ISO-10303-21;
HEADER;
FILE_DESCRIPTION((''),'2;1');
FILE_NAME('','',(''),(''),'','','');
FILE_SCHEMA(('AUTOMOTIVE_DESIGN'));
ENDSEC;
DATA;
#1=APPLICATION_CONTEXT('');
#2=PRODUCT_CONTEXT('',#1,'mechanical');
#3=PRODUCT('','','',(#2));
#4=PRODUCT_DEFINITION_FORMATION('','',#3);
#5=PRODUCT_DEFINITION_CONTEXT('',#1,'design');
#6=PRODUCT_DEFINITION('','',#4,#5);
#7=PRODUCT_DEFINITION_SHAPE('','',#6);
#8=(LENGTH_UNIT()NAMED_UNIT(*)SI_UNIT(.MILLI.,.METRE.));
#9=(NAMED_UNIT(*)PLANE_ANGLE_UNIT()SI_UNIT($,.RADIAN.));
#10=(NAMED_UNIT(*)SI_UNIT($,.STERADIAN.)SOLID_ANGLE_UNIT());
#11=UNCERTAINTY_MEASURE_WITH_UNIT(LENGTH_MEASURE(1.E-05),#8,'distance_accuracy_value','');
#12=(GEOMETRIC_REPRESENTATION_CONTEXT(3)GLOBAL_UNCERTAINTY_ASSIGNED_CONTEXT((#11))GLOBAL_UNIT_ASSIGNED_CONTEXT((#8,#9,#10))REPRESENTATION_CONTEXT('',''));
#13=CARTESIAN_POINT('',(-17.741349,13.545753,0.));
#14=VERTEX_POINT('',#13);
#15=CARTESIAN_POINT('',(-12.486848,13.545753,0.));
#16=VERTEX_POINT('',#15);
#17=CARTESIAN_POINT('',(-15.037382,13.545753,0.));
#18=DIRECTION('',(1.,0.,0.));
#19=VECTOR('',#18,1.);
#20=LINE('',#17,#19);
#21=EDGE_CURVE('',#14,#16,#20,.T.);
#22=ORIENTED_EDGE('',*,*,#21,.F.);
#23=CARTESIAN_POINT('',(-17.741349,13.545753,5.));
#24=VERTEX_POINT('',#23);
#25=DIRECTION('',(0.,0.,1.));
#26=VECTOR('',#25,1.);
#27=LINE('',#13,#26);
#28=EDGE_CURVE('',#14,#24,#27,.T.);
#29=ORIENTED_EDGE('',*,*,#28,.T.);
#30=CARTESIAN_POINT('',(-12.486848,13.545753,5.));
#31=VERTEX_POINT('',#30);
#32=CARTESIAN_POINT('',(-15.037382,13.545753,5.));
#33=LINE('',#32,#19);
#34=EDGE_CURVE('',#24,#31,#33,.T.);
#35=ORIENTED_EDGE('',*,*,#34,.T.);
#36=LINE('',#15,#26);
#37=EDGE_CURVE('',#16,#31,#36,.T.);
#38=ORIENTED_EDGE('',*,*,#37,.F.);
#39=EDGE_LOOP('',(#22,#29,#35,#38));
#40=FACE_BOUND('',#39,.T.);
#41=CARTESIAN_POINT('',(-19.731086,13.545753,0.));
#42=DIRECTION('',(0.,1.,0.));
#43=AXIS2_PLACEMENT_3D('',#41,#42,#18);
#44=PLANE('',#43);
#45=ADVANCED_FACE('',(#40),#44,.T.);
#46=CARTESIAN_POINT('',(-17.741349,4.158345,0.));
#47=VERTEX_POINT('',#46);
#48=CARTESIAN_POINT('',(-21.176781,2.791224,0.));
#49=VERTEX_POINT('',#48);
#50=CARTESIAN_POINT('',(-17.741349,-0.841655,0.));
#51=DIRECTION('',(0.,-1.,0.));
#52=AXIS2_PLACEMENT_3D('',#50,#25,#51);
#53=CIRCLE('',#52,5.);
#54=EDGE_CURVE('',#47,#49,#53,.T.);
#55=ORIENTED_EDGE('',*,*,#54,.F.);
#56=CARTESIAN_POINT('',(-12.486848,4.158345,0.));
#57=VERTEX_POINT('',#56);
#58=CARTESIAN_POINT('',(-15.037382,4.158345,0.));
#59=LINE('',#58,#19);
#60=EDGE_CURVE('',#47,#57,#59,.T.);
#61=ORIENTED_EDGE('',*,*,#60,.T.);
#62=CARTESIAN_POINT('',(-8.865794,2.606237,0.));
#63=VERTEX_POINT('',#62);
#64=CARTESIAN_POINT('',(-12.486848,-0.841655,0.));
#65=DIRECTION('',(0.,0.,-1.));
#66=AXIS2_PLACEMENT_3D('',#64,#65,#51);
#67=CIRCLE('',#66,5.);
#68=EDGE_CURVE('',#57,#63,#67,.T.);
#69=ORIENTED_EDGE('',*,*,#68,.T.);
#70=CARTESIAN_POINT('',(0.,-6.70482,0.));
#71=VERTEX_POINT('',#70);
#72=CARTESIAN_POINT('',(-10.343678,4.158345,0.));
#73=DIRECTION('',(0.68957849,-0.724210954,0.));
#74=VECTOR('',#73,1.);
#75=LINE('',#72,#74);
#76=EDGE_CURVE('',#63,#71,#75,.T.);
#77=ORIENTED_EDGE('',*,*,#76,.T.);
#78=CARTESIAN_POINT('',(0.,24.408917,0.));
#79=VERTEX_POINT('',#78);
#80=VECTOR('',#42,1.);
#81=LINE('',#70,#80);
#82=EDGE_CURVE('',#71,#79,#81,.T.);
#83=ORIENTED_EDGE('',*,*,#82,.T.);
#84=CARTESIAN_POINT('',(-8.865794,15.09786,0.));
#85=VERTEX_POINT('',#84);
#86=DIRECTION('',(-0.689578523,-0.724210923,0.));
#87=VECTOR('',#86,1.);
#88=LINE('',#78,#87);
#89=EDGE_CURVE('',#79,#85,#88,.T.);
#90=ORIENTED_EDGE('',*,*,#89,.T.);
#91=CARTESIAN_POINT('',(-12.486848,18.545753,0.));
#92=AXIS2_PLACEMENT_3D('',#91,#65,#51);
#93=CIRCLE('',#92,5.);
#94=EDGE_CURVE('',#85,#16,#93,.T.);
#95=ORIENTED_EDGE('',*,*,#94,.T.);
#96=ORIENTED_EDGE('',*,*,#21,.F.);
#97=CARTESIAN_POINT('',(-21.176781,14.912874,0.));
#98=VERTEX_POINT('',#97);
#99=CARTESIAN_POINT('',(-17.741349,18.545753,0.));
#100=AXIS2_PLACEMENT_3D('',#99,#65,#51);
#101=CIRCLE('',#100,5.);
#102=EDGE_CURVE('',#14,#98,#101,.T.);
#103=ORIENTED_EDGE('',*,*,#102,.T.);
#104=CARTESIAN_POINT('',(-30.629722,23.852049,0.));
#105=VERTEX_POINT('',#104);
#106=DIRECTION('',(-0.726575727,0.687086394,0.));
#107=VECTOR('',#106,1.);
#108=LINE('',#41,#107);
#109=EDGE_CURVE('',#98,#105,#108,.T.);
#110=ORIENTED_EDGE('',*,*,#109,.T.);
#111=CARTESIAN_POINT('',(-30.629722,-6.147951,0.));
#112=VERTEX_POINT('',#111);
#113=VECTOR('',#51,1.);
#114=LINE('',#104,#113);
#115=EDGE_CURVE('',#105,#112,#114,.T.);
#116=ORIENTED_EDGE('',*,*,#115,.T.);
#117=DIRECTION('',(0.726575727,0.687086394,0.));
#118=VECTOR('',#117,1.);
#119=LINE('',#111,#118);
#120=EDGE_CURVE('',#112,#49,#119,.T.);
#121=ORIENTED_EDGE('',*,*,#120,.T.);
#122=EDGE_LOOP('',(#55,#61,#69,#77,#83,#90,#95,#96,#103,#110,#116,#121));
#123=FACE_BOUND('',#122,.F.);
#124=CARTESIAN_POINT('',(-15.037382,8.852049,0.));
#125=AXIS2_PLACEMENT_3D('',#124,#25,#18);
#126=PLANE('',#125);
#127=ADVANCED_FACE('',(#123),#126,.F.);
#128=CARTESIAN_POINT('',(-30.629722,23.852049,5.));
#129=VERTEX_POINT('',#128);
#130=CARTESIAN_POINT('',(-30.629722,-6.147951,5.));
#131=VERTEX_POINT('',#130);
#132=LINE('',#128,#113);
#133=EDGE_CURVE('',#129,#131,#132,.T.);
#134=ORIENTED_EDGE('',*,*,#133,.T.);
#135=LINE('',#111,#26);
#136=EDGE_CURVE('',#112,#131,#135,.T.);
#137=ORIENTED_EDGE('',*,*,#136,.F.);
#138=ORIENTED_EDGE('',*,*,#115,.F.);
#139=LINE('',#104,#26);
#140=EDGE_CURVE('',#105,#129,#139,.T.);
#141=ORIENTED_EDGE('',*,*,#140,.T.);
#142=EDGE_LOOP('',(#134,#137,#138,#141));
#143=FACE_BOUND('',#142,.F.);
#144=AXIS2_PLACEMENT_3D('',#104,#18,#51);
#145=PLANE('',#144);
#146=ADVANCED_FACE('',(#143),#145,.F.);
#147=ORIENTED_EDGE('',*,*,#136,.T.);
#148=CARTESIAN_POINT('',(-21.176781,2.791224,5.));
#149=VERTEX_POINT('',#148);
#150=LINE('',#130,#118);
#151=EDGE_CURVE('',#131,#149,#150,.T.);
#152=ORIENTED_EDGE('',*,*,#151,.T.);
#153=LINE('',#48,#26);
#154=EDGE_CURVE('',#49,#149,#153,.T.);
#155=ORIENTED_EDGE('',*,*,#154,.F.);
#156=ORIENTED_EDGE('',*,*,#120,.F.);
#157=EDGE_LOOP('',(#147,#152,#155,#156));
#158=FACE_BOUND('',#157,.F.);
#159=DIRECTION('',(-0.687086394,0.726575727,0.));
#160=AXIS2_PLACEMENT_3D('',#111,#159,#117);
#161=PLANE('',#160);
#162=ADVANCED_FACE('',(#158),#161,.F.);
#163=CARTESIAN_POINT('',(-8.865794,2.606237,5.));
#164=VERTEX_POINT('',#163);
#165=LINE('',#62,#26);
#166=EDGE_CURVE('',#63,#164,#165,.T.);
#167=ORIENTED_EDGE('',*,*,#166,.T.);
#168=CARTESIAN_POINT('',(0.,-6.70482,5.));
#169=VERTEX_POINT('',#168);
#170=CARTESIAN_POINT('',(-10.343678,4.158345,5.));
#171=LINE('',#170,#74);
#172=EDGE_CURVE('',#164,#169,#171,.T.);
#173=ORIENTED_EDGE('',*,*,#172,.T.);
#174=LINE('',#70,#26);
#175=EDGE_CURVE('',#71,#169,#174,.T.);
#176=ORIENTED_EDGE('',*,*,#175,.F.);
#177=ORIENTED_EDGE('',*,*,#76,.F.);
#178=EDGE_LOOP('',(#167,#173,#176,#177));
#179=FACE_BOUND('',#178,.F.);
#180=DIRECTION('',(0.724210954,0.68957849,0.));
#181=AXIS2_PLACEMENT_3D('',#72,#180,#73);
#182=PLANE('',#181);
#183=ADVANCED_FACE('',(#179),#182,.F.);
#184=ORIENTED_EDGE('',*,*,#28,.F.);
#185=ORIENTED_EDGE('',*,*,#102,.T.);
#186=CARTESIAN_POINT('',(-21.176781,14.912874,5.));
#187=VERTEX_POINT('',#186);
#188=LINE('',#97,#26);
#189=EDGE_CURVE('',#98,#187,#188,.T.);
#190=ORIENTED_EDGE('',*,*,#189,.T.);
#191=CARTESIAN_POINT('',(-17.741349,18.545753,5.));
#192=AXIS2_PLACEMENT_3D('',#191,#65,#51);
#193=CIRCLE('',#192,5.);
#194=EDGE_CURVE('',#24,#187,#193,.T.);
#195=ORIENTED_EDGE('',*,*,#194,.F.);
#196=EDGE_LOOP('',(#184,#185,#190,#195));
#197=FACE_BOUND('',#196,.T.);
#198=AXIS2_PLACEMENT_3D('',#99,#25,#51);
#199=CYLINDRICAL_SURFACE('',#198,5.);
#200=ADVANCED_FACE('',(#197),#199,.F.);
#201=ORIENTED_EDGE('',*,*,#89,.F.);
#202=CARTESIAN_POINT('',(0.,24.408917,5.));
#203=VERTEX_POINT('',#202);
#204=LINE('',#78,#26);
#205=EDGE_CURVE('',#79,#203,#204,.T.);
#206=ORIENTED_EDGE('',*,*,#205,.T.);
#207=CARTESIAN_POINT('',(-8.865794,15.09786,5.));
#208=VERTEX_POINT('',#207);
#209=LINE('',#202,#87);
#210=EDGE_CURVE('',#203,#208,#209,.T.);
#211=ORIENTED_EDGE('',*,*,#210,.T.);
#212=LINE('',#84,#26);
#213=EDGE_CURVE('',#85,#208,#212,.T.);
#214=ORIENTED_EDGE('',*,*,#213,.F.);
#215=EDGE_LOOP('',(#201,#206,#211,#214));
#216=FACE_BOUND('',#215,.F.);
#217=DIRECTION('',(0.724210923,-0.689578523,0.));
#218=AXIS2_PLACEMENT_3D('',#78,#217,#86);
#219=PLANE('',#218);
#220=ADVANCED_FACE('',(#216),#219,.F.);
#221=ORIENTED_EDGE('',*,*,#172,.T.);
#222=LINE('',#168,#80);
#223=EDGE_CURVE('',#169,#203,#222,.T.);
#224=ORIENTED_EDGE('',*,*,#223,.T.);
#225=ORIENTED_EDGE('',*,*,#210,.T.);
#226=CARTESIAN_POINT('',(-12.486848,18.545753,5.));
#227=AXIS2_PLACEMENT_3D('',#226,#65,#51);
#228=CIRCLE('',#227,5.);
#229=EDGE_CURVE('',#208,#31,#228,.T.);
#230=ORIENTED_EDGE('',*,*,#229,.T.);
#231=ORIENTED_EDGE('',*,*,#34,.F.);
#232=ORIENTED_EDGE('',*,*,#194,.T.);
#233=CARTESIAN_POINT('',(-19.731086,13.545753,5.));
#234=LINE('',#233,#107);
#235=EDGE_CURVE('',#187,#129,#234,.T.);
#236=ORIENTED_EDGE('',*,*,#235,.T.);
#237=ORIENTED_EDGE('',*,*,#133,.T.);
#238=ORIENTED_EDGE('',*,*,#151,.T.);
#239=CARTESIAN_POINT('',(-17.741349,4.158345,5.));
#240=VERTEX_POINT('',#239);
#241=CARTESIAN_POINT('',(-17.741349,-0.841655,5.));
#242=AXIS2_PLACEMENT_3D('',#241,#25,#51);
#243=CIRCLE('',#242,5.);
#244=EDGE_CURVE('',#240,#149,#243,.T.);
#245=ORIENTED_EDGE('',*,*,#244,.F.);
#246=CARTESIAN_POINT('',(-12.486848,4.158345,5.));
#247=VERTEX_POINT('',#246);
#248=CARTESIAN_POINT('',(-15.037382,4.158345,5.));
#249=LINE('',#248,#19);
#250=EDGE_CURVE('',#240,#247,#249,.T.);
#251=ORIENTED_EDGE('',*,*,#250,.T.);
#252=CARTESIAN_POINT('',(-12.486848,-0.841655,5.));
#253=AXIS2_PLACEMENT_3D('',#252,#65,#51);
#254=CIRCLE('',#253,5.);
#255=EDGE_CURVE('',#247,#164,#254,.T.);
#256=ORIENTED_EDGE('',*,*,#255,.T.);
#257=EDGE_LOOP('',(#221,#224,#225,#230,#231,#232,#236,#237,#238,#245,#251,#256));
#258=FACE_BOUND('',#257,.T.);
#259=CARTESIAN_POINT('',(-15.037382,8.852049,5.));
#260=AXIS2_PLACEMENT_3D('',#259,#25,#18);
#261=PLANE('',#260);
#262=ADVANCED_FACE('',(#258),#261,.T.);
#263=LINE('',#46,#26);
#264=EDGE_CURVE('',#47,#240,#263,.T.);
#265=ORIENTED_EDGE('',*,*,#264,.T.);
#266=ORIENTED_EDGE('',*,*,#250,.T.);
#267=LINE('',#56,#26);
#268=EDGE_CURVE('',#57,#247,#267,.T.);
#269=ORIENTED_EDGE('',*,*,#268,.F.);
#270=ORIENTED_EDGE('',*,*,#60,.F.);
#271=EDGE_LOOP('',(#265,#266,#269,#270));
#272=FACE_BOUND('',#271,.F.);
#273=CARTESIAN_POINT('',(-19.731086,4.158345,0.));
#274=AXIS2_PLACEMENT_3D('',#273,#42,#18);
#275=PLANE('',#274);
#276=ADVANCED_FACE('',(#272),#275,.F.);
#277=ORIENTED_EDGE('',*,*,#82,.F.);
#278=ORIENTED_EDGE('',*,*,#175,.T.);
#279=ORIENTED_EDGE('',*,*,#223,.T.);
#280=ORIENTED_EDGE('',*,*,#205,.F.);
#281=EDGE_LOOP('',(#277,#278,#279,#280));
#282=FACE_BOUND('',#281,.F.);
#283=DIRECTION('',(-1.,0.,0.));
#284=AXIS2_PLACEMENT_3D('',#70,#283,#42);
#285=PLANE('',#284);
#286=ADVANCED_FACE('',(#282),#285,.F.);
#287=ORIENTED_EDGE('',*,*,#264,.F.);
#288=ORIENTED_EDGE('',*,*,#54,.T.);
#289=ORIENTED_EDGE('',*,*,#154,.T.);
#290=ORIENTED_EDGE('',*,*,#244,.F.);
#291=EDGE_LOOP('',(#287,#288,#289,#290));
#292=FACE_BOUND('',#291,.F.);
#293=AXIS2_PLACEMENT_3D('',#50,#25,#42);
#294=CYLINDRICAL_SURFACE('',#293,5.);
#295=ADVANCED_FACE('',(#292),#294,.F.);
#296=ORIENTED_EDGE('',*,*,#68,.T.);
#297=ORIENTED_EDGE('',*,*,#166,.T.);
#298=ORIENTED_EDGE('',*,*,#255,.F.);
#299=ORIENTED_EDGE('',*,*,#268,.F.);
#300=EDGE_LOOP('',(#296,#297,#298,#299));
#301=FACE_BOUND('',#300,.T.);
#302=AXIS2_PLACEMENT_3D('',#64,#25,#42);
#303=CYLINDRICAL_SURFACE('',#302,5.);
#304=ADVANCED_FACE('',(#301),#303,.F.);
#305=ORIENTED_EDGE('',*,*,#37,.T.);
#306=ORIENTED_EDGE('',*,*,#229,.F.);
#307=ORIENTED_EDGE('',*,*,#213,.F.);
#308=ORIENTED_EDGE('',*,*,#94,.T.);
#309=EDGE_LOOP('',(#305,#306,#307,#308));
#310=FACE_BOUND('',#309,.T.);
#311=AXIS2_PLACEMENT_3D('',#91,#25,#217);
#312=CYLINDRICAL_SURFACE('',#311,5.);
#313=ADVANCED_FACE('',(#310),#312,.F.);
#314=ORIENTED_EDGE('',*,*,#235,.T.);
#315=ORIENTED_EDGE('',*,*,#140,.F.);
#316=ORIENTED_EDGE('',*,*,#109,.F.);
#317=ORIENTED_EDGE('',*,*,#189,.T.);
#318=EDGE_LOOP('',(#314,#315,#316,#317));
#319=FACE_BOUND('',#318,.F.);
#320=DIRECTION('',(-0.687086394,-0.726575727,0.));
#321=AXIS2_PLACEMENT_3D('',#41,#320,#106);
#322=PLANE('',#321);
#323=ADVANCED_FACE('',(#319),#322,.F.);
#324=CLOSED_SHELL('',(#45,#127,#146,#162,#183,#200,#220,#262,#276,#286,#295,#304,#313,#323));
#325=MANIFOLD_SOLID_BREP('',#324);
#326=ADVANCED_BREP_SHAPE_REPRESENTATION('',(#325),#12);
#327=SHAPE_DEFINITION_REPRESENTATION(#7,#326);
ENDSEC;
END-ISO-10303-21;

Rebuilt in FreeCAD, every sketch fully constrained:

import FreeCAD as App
import Part
import Sketcher


def edges_at(feature, points):
    """Names of the edges that pass closest to the given points."""
    edges = feature.Shape.Edges
    near = lambda p: min(range(len(edges)), key=lambda i: edges[i].distToShape(Part.Vertex(*p))[0])
    return sorted({f"Edge{near(p) + 1}" for p in points})


def add_polygon(sketch, points):
    """Adds a closed chain of lines whose ends are joined by coincident constraints."""
    first, n = sketch.GeometryCount, len(points)
    for a, b in zip(points, points[1:] + points[:1]):
        sketch.addGeometry(Part.LineSegment(App.Vector(*a, 0), App.Vector(*b, 0)), False)
    for i in range(n):
        sketch.addConstraint(Sketcher.Constraint("Coincident", first + i, 2, first + (i + 1) % n, 1))

doc = App.newDocument("Part")
body = doc.addObject("PartDesign::Body", "Body")

sketch1 = body.newObject("Sketcher::SketchObject", "Sketch")
sketch1.AttachmentSupport = (doc.getObject("XY_Plane"), [""])
sketch1.MapMode = "FlatFace"
add_polygon(sketch1, [(-20, 4), (-10, 4), (0, -7), (0, 24), (-10, 14), (-20, 14), (-31, 24), (-31, -6)])
sketch1.addConstraint([
    Sketcher.Constraint("Horizontal", 0),
    Sketcher.Constraint("Vertical", 2),
    Sketcher.Constraint("Horizontal", 4),
    Sketcher.Constraint("Vertical", 6),
    Sketcher.Constraint("PointOnObject", 1, 2, -2),
    Sketcher.Constraint("Vertical", 0, 2, 3, 2),
    Sketcher.Constraint("Vertical", 4, 2, 7, 2),
    Sketcher.Constraint("Equal", 1, 3),
    Sketcher.Constraint("Equal", 3, 5),
    Sketcher.Constraint("Equal", 5, 7),
    Sketcher.Constraint("DistanceY", 6, 2, 6, 1, 30.0),
    Sketcher.Constraint("Distance", 1, 15.000001),
    Sketcher.Constraint("DistanceX", 0, 1, 0, 2, 9.387408),
    Sketcher.Constraint("DistanceY", 2, 1, 2, 2, 31.113737),
    Sketcher.Constraint("DistanceY", 1, 2, -1, 1, 6.70482),
    Sketcher.Constraint("DistanceY", 0, 2, 2, 2, 20.250572),
])
pad1 = body.newObject("PartDesign::Pad", "Pad")
pad1.Profile = sketch1
pad1.Length = 5
doc.recompute()

fillet = body.newObject("PartDesign::Fillet", "Fillet")
fillet.Base = (pad1, edges_at(pad1, [
    (-10.344, 4.158, 2.5),
    (-19.731, 4.158, 2.5),
    (-10.344, 13.546, 2.5),
    (-19.731, 13.546, 2.5),
]))
fillet.Radius = 5

doc.recompute()
